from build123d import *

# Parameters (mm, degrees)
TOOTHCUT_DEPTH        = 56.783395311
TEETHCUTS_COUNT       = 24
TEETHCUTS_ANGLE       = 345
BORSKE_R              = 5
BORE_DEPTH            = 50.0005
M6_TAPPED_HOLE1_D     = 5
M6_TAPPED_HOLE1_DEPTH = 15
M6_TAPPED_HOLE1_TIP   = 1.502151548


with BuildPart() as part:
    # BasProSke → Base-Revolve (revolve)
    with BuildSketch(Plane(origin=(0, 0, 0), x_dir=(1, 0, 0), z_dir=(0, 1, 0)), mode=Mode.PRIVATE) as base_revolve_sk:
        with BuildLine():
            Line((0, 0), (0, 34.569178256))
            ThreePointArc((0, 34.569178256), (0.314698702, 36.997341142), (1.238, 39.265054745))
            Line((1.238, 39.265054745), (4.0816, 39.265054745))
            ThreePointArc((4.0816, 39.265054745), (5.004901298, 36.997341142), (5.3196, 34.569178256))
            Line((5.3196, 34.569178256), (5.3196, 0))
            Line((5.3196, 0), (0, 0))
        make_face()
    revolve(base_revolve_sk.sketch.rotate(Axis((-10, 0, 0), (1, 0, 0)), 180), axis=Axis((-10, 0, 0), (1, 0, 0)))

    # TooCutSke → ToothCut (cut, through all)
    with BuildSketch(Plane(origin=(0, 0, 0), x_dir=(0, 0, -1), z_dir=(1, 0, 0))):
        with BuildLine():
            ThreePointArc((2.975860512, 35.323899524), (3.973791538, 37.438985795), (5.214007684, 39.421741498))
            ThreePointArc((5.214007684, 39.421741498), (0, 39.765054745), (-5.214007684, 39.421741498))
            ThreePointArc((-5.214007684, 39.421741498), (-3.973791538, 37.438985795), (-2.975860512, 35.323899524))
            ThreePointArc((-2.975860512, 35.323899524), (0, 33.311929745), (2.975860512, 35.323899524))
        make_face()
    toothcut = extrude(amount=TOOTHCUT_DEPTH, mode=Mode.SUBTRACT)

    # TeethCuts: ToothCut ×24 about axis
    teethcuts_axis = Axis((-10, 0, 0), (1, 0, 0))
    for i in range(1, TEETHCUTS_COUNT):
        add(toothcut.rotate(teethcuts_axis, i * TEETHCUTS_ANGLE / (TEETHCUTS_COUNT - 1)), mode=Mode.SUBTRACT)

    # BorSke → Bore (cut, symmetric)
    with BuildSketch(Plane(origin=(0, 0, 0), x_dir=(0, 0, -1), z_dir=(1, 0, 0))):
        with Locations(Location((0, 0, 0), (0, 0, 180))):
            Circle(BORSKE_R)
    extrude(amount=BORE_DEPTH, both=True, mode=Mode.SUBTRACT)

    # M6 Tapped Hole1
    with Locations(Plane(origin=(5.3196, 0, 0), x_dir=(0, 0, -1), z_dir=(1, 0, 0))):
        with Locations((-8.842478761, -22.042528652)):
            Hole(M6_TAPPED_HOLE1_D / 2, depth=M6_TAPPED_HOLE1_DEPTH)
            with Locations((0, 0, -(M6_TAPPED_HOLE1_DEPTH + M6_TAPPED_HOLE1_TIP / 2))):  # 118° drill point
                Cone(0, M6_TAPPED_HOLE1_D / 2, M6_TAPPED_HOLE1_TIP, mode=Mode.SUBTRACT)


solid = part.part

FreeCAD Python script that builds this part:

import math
import FreeCAD as App
import Part
import Sketcher

V = App.Vector

doc = App.newDocument("Part")
body = doc.addObject("PartDesign::Body", "Body")

# Sketch on XZ plane
sketch1 = doc.addObject("Sketcher::SketchObject", "Sketch")
body.addObject(sketch1)
sketch1.AttachmentSupport = (doc.XZ_Plane, [""])
sketch1.MapMode = "FlatFace"
sketch1.addGeometry([
    Part.LineSegment(V(0, -34.6, 0), V(0, 0, 0)),  # 0
    Part.LineSegment(V(0, 0, 0), V(5.3, 0, 0)),  # 1
    Part.LineSegment(V(5.3, 0, 0), V(5.3, -34.6, 0)),  # 2
    Part.ArcOfCircle(Part.Circle(V(-4.2, -34.6, 0), V(0, 0, 1), 9.5), math.radians(-30), math.radians(0)),  # 3
    Part.LineSegment(V(4.1, -39.3, 0), V(1.2, -39.3, 0)),  # 4
    Part.ArcOfCircle(Part.Circle(V(9.5, -34.6, 0), V(0, 0, 1), 9.5), math.radians(180), math.radians(210)),  # 5
], False)
sketch1.addConstraint([
    Sketcher.Constraint("Coincident", 0, 2, 1, 1),
    Sketcher.Constraint("Coincident", 1, 2, 2, 1),
    Sketcher.Constraint("Tangent", 2, 2, 3, 2),
    Sketcher.Constraint("Coincident", 3, 1, 4, 1),
    Sketcher.Constraint("Coincident", 4, 2, 5, 2),
    Sketcher.Constraint("Tangent", 5, 1, 0, 1),
    Sketcher.Constraint("Vertical", 0),
    Sketcher.Constraint("Horizontal", 1),
    Sketcher.Constraint("Vertical", 2),
    Sketcher.Constraint("Horizontal", 4),
    Sketcher.Constraint("Coincident", 0, 2, -1, 1),
    Sketcher.Constraint("Equal", 3, 5),
    Sketcher.Constraint("Horizontal", 3, 3, 5, 3),
    Sketcher.Constraint("Radius", 3, 9.525),
    Sketcher.Constraint("DistanceX", 1, 1, 1, 2, 5.3196),
    Sketcher.Constraint("DistanceX", 4, 2, 4, 1, 2.8436),
    Sketcher.Constraint("DistanceY", 0, 1, 0, 2, 34.569178),
])
revolution = doc.addObject("PartDesign::Revolution", "Revolution")
body.addObject(revolution)
revolution.Profile = sketch1
revolution.ReferenceAxis = (sketch1, ["H_Axis"])
revolution.Angle = 360

# Sketch on YZ plane
sketch2 = doc.addObject("Sketcher::SketchObject", "Sketch001")
body.addObject(sketch2)
sketch2.AttachmentSupport = (doc.YZ_Plane, [""])
sketch2.MapMode = "FlatFace"
sketch2.addGeometry([
    Part.ArcOfCircle(Part.Circle(V(27.9, -21.4, 0), V(0, 0, 1), 19.8), math.radians(54.59), math.radians(68.13)),
    Part.ArcOfCircle(Part.Circle(V(0, 0, 0), V(0, 0, 1), 39.8), math.radians(-7.53), math.radians(7.53)),
    Part.ArcOfCircle(Part.Circle(V(27.9, 21.4, 0), V(0, 0, 1), 19.8), math.radians(-68.13), math.radians(-54.59)),
    Part.ArcOfCircle(Part.Circle(V(36.5, 0, 0), V(0, 0, 1), 3.2), math.radians(112), math.radians(248)),
], False)
sketch2.addConstraint([
    Sketcher.Constraint("Coincident", 0, 1, 1, 1),
    Sketcher.Constraint("Coincident", 1, 2, 2, 2),
    Sketcher.Constraint("Tangent", 2, 1, 3, 1),
    Sketcher.Constraint("Tangent", 3, 2, 0, 2),
    Sketcher.Constraint("Coincident", 1, 3, -1, 1),
    Sketcher.Constraint("Equal", 0, 2),
    Sketcher.Constraint("Symmetric", 0, 3, 2, 3, -1),
    Sketcher.Constraint("Radius", 0, 19.812),
    Sketcher.Constraint("Radius", 3, 3.20675),
    Sketcher.Constraint("Radius", 1, 39.765055),
    Sketcher.Constraint("DistanceX", -1, 1, 2, 1, 35.3239),
    Sketcher.Constraint("DistanceX", -1, 1, 3, 3, 36.51868),
])
pocket1 = doc.addObject("PartDesign::Pocket", "Pocket")
body.addObject(pocket1)
pocket1.Profile = sketch2
pocket1.Type = "ThroughAll"
pocket1.Reversed = True
doc.recompute()

polarpattern = doc.addObject("PartDesign::PolarPattern", "PolarPattern")
body.addObject(polarpattern)
polarpattern.Originals = [pocket1]
polarpattern.Axis = (doc.X_Axis, [""])
polarpattern.Angle = 360
polarpattern.Occurrences = 24
body.Tip = polarpattern

# Sketch on YZ plane
sketch3 = doc.addObject("Sketcher::SketchObject", "Sketch002")
body.addObject(sketch3)
sketch3.AttachmentSupport = (doc.YZ_Plane, [""])
sketch3.MapMode = "FlatFace"
sketch3.addGeometry(Part.Circle(V(0, 0, 0), V(0, 0, 1), 5), False)
sketch3.addConstraint([
    Sketcher.Constraint("Coincident", 0, 3, -1, 1),
    Sketcher.Constraint("Diameter", 0, 10.0),
])
pocket2 = doc.addObject("PartDesign::Pocket", "Pocket001")
body.addObject(pocket2)
pocket2.Profile = sketch3
pocket2.Length = 100.001
pocket2.Midplane = True

# Sketch on YZ plane
sketch4 = doc.addObject("Sketcher::SketchObject", "Sketch003")
body.addObject(sketch4)
sketch4.AttachmentSupport = (doc.YZ_Plane, [""])
sketch4.MapMode = "FlatFace"
sketch4.AttachmentOffset = App.Placement(V(0, 0, 5.3196), App.Rotation())
sketch4.addGeometry(Part.Circle(V(-22, 8.8, 0), V(0, 0, 1), 2.5), False)
sketch4.addConstraint([
    Sketcher.Constraint("Diameter", 0, 5.0),
    Sketcher.Constraint("DistanceX", 0, 3, -1, 1, 22.042529),
    Sketcher.Constraint("DistanceY", -1, 1, 0, 3, 8.842479),
])
doc.recompute()
hole = doc.addObject("PartDesign::Hole", "Hole")
body.addObject(hole)
hole.Profile = sketch4
hole.ThreadType = "None"
hole.Diameter = 5
hole.DepthType = "Dimension"
hole.Depth = 15
hole.DrillPoint = "Angled"
hole.DrillPointAngle = 118

doc.recompute()
